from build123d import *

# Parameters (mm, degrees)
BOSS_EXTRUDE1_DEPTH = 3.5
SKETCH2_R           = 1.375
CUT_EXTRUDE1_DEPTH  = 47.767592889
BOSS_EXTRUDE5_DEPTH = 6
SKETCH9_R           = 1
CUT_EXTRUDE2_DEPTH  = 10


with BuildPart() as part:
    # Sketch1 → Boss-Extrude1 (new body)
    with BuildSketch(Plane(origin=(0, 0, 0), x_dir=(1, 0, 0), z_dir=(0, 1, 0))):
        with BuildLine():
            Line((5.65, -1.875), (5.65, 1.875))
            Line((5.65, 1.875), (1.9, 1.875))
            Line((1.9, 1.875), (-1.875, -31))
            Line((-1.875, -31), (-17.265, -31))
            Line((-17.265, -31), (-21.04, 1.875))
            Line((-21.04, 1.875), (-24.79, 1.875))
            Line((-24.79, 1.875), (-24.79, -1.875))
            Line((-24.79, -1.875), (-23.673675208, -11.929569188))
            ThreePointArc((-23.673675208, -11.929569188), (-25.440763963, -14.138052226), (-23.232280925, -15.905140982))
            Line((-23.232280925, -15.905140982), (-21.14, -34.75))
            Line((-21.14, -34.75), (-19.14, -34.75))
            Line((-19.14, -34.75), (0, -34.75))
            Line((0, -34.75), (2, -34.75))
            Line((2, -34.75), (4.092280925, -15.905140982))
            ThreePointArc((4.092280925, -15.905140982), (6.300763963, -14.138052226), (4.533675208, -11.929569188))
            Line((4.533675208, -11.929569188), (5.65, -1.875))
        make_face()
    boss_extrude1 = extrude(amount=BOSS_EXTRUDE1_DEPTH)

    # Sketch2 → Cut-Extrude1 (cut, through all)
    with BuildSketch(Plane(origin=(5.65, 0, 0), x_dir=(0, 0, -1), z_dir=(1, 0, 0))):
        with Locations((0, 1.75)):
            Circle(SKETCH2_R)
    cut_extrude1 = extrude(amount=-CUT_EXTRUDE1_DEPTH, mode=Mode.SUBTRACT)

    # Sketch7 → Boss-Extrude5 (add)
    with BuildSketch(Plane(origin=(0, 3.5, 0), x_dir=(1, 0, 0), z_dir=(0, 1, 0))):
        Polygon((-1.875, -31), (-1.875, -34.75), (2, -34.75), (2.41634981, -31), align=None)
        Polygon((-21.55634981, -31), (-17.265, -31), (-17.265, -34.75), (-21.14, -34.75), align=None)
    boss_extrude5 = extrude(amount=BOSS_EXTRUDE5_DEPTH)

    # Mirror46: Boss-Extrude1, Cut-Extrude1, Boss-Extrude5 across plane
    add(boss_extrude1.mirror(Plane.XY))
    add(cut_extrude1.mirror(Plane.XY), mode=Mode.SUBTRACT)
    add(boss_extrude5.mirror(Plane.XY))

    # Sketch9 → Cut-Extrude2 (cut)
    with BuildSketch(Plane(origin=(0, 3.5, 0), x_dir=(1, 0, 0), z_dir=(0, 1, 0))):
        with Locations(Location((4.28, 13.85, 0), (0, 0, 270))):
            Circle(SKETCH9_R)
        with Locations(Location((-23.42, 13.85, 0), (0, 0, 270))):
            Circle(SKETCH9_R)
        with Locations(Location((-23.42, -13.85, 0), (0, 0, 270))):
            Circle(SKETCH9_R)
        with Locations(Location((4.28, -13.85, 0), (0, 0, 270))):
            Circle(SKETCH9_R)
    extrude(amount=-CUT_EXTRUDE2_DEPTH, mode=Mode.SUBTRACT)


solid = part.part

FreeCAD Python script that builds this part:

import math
import FreeCAD as App
import Part
import Sketcher
Q = App.Units.Quantity

doc = App.newDocument("Part")
body = doc.addObject("PartDesign::Body", "Body")

sketch1 = body.newObject("Sketcher::SketchObject", "Sketch")
sketch1.AttachmentSupport = (doc.getObject("XZ_Plane"), [""])
sketch1.MapMode = "FlatFace"
sketch1.addGeometry(Part.LineSegment(App.Vector(5.7, 1.9, 0), App.Vector(5.7, -1.9, 0)), False)
sketch1.addGeometry(Part.LineSegment(App.Vector(5.7, -1.9, 0), App.Vector(1.9, -1.9, 0)), False)
sketch1.addGeometry(Part.LineSegment(App.Vector(1.9, -1.9, 0), App.Vector(-1.9, 31, 0)), False)
sketch1.addGeometry(Part.LineSegment(App.Vector(-1.9, 31, 0), App.Vector(-17.3, 31, 0)), False)
sketch1.addGeometry(Part.LineSegment(App.Vector(-17.3, 31, 0), App.Vector(-21, -1.9, 0)), False)
sketch1.addGeometry(Part.LineSegment(App.Vector(-21, -1.9, 0), App.Vector(-24.8, -1.9, 0)), False)
sketch1.addGeometry(Part.LineSegment(App.Vector(-24.8, -1.9, 0), App.Vector(-24.8, 1.9, 0)), False)
sketch1.addGeometry(Part.LineSegment(App.Vector(-24.8, 1.9, 0), App.Vector(-23.7, 11.9, 0)), False)
sketch1.addGeometry(Part.ArcOfCircle(Part.Circle(App.Vector(-23.5, 13.9, 0), App.Vector(0, 0, 1), 2), math.radians(84), math.radians(264)), False)
sketch1.addGeometry(Part.LineSegment(App.Vector(-23.2, 15.9, 0), App.Vector(-21.1, 34.8, 0)), False)
sketch1.addGeometry(Part.LineSegment(App.Vector(-21.1, 34.8, 0), App.Vector(2, 34.8, 0)), False)
sketch1.addGeometry(Part.LineSegment(App.Vector(2, 34.8, 0), App.Vector(4.1, 15.9, 0)), False)
sketch1.addGeometry(Part.ArcOfCircle(Part.Circle(App.Vector(4.3, 13.9, 0), App.Vector(0, 0, 1), 2), math.radians(-84), math.radians(96)), False)
sketch1.addGeometry(Part.LineSegment(App.Vector(4.5, 11.9, 0), App.Vector(5.7, 1.9, 0)), False)
sketch1.addConstraint(Sketcher.Constraint("Coincident", 0, 2, 1, 1))
sketch1.addConstraint(Sketcher.Constraint("Coincident", 1, 2, 2, 1))
sketch1.addConstraint(Sketcher.Constraint("Coincident", 2, 2, 3, 1))
sketch1.addConstraint(Sketcher.Constraint("Coincident", 3, 2, 4, 1))
sketch1.addConstraint(Sketcher.Constraint("Coincident", 4, 2, 5, 1))
sketch1.addConstraint(Sketcher.Constraint("Coincident", 5, 2, 6, 1))
sketch1.addConstraint(Sketcher.Constraint("Coincident", 6, 2, 7, 1))
sketch1.addConstraint(Sketcher.Constraint("Coincident", 7, 2, 8, 2))
sketch1.addConstraint(Sketcher.Constraint("Coincident", 8, 1, 9, 1))
sketch1.addConstraint(Sketcher.Constraint("Coincident", 9, 2, 10, 1))
sketch1.addConstraint(Sketcher.Constraint("Coincident", 10, 2, 11, 1))
sketch1.addConstraint(Sketcher.Constraint("Coincident", 11, 2, 12, 2))
sketch1.addConstraint(Sketcher.Constraint("Coincident", 12, 1, 13, 1))
sketch1.addConstraint(Sketcher.Constraint("Coincident", 13, 2, 0, 1))
sketch1.addConstraint(Sketcher.Constraint("Vertical", 0))
sketch1.addConstraint(Sketcher.Constraint("Horizontal", 1))
sketch1.addConstraint(Sketcher.Constraint("Horizontal", 3))
sketch1.addConstraint(Sketcher.Constraint("Horizontal", 5))
sketch1.addConstraint(Sketcher.Constraint("Vertical", 6))
sketch1.addConstraint(Sketcher.Constraint("Horizontal", 10))
sketch1.addConstraint(Sketcher.Constraint("Equal", 8, 12))
sketch1.addConstraint(Sketcher.Constraint("Parallel", 7, 9))
sketch1.addConstraint(Sketcher.Constraint("Parallel", 11, 13))
sketch1.addConstraint(Sketcher.Constraint("Horizontal", 8, 3, 12, 3))
sketch1.addConstraint(Sketcher.Constraint("Horizontal", 1, 2, 4, 2))
sketch1.addConstraint(Sketcher.Constraint("Horizontal", 8, 1, 11, 2))
sketch1.addConstraint(Sketcher.Constraint("Horizontal", 7, 2, 12, 1))
sketch1.addConstraint(Sketcher.Constraint("Horizontal", 6, 2, 13, 2))
sketch1.addConstraint(Sketcher.Constraint("Equal", 1, 5))
sketch1.addConstraint(Sketcher.Constraint("Equal", 5, 0))
sketch1.addConstraint(Sketcher.Constraint("Equal", 2, 4))
sketch1.addConstraint(Sketcher.Constraint("Equal", 9, 11))
sketch1.addConstraint(Sketcher.Constraint("Radius", 8, Q("2 mm")))
sketch1.addConstraint(Sketcher.Constraint("DistanceY", -1, 1, 2, 2, Q("31 mm")))
sketch1.addConstraint(Sketcher.Constraint("DistanceX", -1, 1, 10, 2, Q("2 mm")))
sketch1.addConstraint(Sketcher.Constraint("DistanceX", 1, 2, 1, 1, Q("3.75 mm")))
sketch1.addConstraint(Sketcher.Constraint("DistanceX", 3, 2, 3, 1, Q("15.39 mm")))
sketch1.addConstraint(Sketcher.Constraint("DistanceX", 10, 1, 10, 2, Q("23.14 mm")))
sketch1.addConstraint(Sketcher.Constraint("DistanceX", -1, 1, 1, 2, Q("1.9 mm")))
sketch1.addConstraint(Sketcher.Constraint("DistanceY", -1, 1, 9, 2, Q("34.75 mm")))
sketch1.addConstraint(Sketcher.Constraint("DistanceY", 0, 2, -1, 1, Q("1.875 mm")))
sketch1.addConstraint(Sketcher.Constraint("Distance", 7, Q("10.11635 mm")))
sketch1.addConstraint(Sketcher.Constraint("DistanceX", 8, 3, -1, 1, Q("23.452978 mm")))
sketch1.addConstraint(Sketcher.Constraint("DistanceY", -1, 1, 7, 2, Q("11.929569 mm")))
pad1 = body.newObject("PartDesign::Pad", "Pad")
pad1.Profile = sketch1
pad1.Length = 3.5
pad1.Reversed = True

sketch2 = body.newObject("Sketcher::SketchObject", "Sketch001")
sketch2.AttachmentSupport = (doc.getObject("YZ_Plane"), [""])
sketch2.MapMode = "FlatFace"
sketch2.AttachmentOffset = App.Placement(App.Vector(0, 0, 5.65), App.Rotation())
sketch2.addGeometry(Part.Circle(App.Vector(1.8, 0, 0), App.Vector(0, 0, 1), 1.4), False)
sketch2.addConstraint(Sketcher.Constraint("PointOnObject", 0, 3, -1))
sketch2.addConstraint(Sketcher.Constraint("Diameter", 0, Q("2.75 mm")))
sketch2.addConstraint(Sketcher.Constraint("DistanceX", -1, 1, 0, 3, Q("1.75 mm")))
pocket1 = body.newObject("PartDesign::Pocket", "Pocket")
pocket1.Profile = sketch2
pocket1.Type = "ThroughAll"

sketch3 = body.newObject("Sketcher::SketchObject", "Sketch002")
sketch3.AttachmentSupport = (doc.getObject("XZ_Plane"), [""])
sketch3.MapMode = "FlatFace"
sketch3.AttachmentOffset = App.Placement(App.Vector(0, 0, -3.5), App.Rotation())
sketch3.addGeometry(Part.LineSegment(App.Vector(-1.9, 31, 0), App.Vector(-1.9, 34.8, 0)), False)
sketch3.addGeometry(Part.LineSegment(App.Vector(-1.9, 34.8, 0), App.Vector(2, 34.8, 0)), False)
sketch3.addGeometry(Part.LineSegment(App.Vector(2, 34.8, 0), App.Vector(2.4, 31, 0)), False)
sketch3.addGeometry(Part.LineSegment(App.Vector(2.4, 31, 0), App.Vector(-1.9, 31, 0)), False)
sketch3.addGeometry(Part.LineSegment(App.Vector(-17.3, 31, 0), App.Vector(-21.6, 31, 0)), False)
sketch3.addGeometry(Part.LineSegment(App.Vector(-21.6, 31, 0), App.Vector(-21.1, 34.8, 0)), False)
sketch3.addGeometry(Part.LineSegment(App.Vector(-21.1, 34.8, 0), App.Vector(-17.3, 34.8, 0)), False)
sketch3.addGeometry(Part.LineSegment(App.Vector(-17.3, 34.8, 0), App.Vector(-17.3, 31, 0)), False)
sketch3.addConstraint(Sketcher.Constraint("Coincident", 0, 2, 1, 1))
sketch3.addConstraint(Sketcher.Constraint("Coincident", 1, 2, 2, 1))
sketch3.addConstraint(Sketcher.Constraint("Coincident", 2, 2, 3, 1))
sketch3.addConstraint(Sketcher.Constraint("Coincident", 3, 2, 0, 1))
sketch3.addConstraint(Sketcher.Constraint("Coincident", 4, 2, 5, 1))
sketch3.addConstraint(Sketcher.Constraint("Coincident", 5, 2, 6, 1))
sketch3.addConstraint(Sketcher.Constraint("Coincident", 6, 2, 7, 1))
sketch3.addConstraint(Sketcher.Constraint("Coincident", 7, 2, 4, 1))
sketch3.addConstraint(Sketcher.Constraint("Vertical", 0))
sketch3.addConstraint(Sketcher.Constraint("Horizontal", 1))
sketch3.addConstraint(Sketcher.Constraint("Horizontal", 3))
sketch3.addConstraint(Sketcher.Constraint("Horizontal", 4))
sketch3.addConstraint(Sketcher.Constraint("Horizontal", 6))
sketch3.addConstraint(Sketcher.Constraint("Vertical", 7))
sketch3.addConstraint(Sketcher.Constraint("Horizontal", 3, 2, 4, 2))
sketch3.addConstraint(Sketcher.Constraint("Horizontal", 1, 2, 5, 2))
sketch3.addConstraint(Sketcher.Constraint("Equal", 3, 4))
sketch3.addConstraint(Sketcher.Constraint("Equal", 1, 6))
sketch3.addConstraint(Sketcher.Constraint("DistanceX", -1, 1, 1, 2, Q("2 mm")))
sketch3.addConstraint(Sketcher.Constraint("DistanceY", -1, 1, 2, 2, Q("31 mm")))
sketch3.addConstraint(Sketcher.Constraint("DistanceY", 0, 1, 0, 2, Q("3.75 mm")))
sketch3.addConstraint(Sketcher.Constraint("DistanceX", 1, 1, 1, 2, Q("3.875 mm")))
sketch3.addConstraint(Sketcher.Constraint("DistanceX", 5, 2, -1, 1, Q("21.14 mm")))
sketch3.addConstraint(Sketcher.Constraint("DistanceX", 3, 2, 3, 1, Q("4.29135 mm")))
pad2 = body.newObject("PartDesign::Pad", "Pad001")
pad2.Profile = sketch3
pad2.Length = 6
pad2.Reversed = True
doc.recompute()

mirrored = body.newObject("PartDesign::Mirrored", "Mirrored")
mirrored.Originals = [pad1, pocket1, pad2]
mirrored.MirrorPlane = (doc.getObject("XY_Plane"), [""])
body.Tip = mirrored

sketch4 = body.newObject("Sketcher::SketchObject", "Sketch003")
sketch4.AttachmentSupport = (doc.getObject("XZ_Plane"), [""])
sketch4.MapMode = "FlatFace"
sketch4.AttachmentOffset = App.Placement(App.Vector(0, 0, -3.5), App.Rotation())
sketch4.addGeometry(Part.Circle(App.Vector(4.3, -13.8, 0), App.Vector(0, 0, 1), 1), False)
sketch4.addGeometry(Part.Circle(App.Vector(-23.4, -13.8, 0), App.Vector(0, 0, 1), 1), False)
sketch4.addGeometry(Part.Circle(App.Vector(-23.4, 13.8, 0), App.Vector(0, 0, 1), 1), False)
sketch4.addGeometry(Part.Circle(App.Vector(4.3, 13.8, 0), App.Vector(0, 0, 1), 1), False)
sketch4.addConstraint(Sketcher.Constraint("Equal", 0, 1))
sketch4.addConstraint(Sketcher.Constraint("Equal", 1, 2))
sketch4.addConstraint(Sketcher.Constraint("Equal", 2, 3))
sketch4.addConstraint(Sketcher.Constraint("Symmetric", 1, 3, 2, 3, -1))
sketch4.addConstraint(Sketcher.Constraint("Symmetric", 0, 3, 3, 3, -1))
sketch4.addConstraint(Sketcher.Constraint("Horizontal", 0, 3, 1, 3))
sketch4.addConstraint(Sketcher.Constraint("Diameter", 0, Q("2 mm")))
sketch4.addConstraint(Sketcher.Constraint("DistanceX", 1, 3, 0, 3, Q("27.7 mm")))
sketch4.addConstraint(Sketcher.Constraint("DistanceY", 1, 3, 2, 3, Q("27.7 mm")))
sketch4.addConstraint(Sketcher.Constraint("DistanceX", -1, 1, 0, 3, Q("4.28 mm")))
pocket2 = body.newObject("PartDesign::Pocket", "Pocket001")
pocket2.Profile = sketch4
pocket2.Length = 10
pocket2.Reversed = True

doc.recompute()
